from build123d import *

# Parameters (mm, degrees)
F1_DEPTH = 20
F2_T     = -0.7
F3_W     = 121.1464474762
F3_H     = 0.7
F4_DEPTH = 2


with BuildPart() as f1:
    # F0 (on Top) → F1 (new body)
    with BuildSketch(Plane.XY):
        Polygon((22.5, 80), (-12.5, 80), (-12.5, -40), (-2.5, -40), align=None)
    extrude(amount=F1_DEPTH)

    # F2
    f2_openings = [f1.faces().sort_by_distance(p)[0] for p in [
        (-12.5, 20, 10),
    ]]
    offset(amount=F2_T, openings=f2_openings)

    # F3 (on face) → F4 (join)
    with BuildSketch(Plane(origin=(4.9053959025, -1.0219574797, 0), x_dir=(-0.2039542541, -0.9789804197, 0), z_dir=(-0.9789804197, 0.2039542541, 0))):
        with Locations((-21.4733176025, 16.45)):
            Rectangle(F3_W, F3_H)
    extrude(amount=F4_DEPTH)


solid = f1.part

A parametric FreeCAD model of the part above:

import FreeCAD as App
import Part
import Sketcher


def faces_at(feature, points):
    """Names of the faces that lie closest to the given points."""
    faces = feature.Shape.Faces
    near = lambda p: min(range(len(faces)), key=lambda i: faces[i].distToShape(Part.Vertex(*p))[0])
    return sorted({f"Face{near(p) + 1}" for p in points})

doc = App.newDocument("Part")
params = doc.addObject("Spreadsheet::Sheet", "Params")
for row, (alias, value) in enumerate([
    ("sketch1_width", "35 mm"),
    ("sketch1_width2", "10 mm"),
    ("sketch1_height", "120 mm"),
    ("pad1_length", "20 mm"),
    ("thickness_wall", "0.7 mm"),
    ("sketch2_height", "0.7 mm"),
    ("pad2_length", "2 mm"),
], start=1):
    params.set(f"A{row}", alias)
    params.set(f"B{row}", "=" + value)
    params.setAlias(f"B{row}", alias)

body = doc.addObject("PartDesign::Body", "Body")

# Sketch on XY plane
sketch1 = body.newObject("Sketcher::SketchObject", "Sketch")
sketch1.AttachmentSupport = (doc.getObject("XY_Plane"), [""])
sketch1.MapMode = "FlatFace"
sketch1.addGeometry(Part.LineSegment(App.Vector(22.5, 80, 0), App.Vector(-12.5, 80, 0)), False)
sketch1.addGeometry(Part.LineSegment(App.Vector(-12.5, 80, 0), App.Vector(-12.5, -40, 0)), False)
sketch1.addGeometry(Part.LineSegment(App.Vector(-12.5, -40, 0), App.Vector(-2.5, -40, 0)), False)
sketch1.addGeometry(Part.LineSegment(App.Vector(-2.5, -40, 0), App.Vector(22.5, 80, 0)), False)
sketch1.addConstraint(Sketcher.Constraint("Coincident", 0, 2, 1, 1))
sketch1.addConstraint(Sketcher.Constraint("Coincident", 1, 2, 2, 1))
sketch1.addConstraint(Sketcher.Constraint("Coincident", 2, 2, 3, 1))
sketch1.addConstraint(Sketcher.Constraint("Coincident", 3, 2, 0, 1))
sketch1.addConstraint(Sketcher.Constraint("Horizontal", 0))
sketch1.addConstraint(Sketcher.Constraint("Vertical", 1))
sketch1.addConstraint(Sketcher.Constraint("Horizontal", 2))
sketch1.addConstraint(Sketcher.Constraint("DistanceX", 0, 2, 0, 1, 35.0))
sketch1.addConstraint(Sketcher.Constraint("DistanceX", 2, 1, 2, 2, 10.0))
sketch1.addConstraint(Sketcher.Constraint("DistanceY", 1, 2, 1, 1, 120.0))
sketch1.addConstraint(Sketcher.Constraint("DistanceY", -1, 1, 0, 2, 80.0))
sketch1.addConstraint(Sketcher.Constraint("DistanceX", 0, 2, -1, 1, 12.5))
sketch1.setExpression("Constraints[7]", "Params.sketch1_width")
sketch1.setExpression("Constraints[8]", "Params.sketch1_width2")
sketch1.setExpression("Constraints[9]", "Params.sketch1_height")
pad1 = body.newObject("PartDesign::Pad", "Pad")
pad1.Profile = sketch1
pad1.setExpression("Length", "Params.pad1_length")
doc.recompute()

thickness = body.newObject("PartDesign::Thickness", "Thickness")
thickness.Base = (pad1, faces_at(pad1, [(-12.5, 20, 10)]))
thickness.setExpression("Value", "Params.thickness_wall")
thickness.Reversed = True
thickness.Join = "Arc"

# Sketch on an angled plane
sketch2 = body.newObject("Sketcher::SketchObject", "Sketch001")
sketch2.Placement = App.Placement(App.Vector(4.905396, -1.021957, 0), App.Rotation(App.Vector(-0.203954254, -0.97898042, 0), App.Vector(0, 0, 1), App.Vector(-0.97898042, 0.203954254, 0), "ZXY"))
sketch2.addGeometry(Part.LineSegment(App.Vector(-82.046541, 16.8, 0), App.Vector(-82.046541, 16.1, 0)), False)
sketch2.addGeometry(Part.LineSegment(App.Vector(-82.046541, 16.1, 0), App.Vector(39.099906, 16.1, 0)), False)
sketch2.addGeometry(Part.LineSegment(App.Vector(39.099906, 16.1, 0), App.Vector(39.099906, 16.8, 0)), False)
sketch2.addGeometry(Part.LineSegment(App.Vector(39.099906, 16.8, 0), App.Vector(-82.046541, 16.8, 0)), False)
sketch2.addConstraint(Sketcher.Constraint("Coincident", 0, 2, 1, 1))
sketch2.addConstraint(Sketcher.Constraint("Coincident", 1, 2, 2, 1))
sketch2.addConstraint(Sketcher.Constraint("Coincident", 2, 2, 3, 1))
sketch2.addConstraint(Sketcher.Constraint("Coincident", 3, 2, 0, 1))
sketch2.addConstraint(Sketcher.Constraint("Vertical", 0))
sketch2.addConstraint(Sketcher.Constraint("Horizontal", 1))
sketch2.addConstraint(Sketcher.Constraint("Vertical", 2))
sketch2.addConstraint(Sketcher.Constraint("Horizontal", 3))
sketch2.addConstraint(Sketcher.Constraint("DistanceY", 0, 2, 0, 1, 0.7))
sketch2.addConstraint(Sketcher.Constraint("DistanceY", -1, 1, 0, 2, 16.1))
sketch2.addConstraint(Sketcher.Constraint("DistanceX", 1, 1, 1, 2, 121.146448))
sketch2.addConstraint(Sketcher.Constraint("DistanceX", 0, 2, -1, 1, 82.046541))
sketch2.setExpression("Constraints[8]", "Params.sketch2_height")
pad2 = body.newObject("PartDesign::Pad", "Pad001")
pad2.Profile = sketch2
pad2.setExpression("Length", "Params.pad2_length")

doc.recompute()
